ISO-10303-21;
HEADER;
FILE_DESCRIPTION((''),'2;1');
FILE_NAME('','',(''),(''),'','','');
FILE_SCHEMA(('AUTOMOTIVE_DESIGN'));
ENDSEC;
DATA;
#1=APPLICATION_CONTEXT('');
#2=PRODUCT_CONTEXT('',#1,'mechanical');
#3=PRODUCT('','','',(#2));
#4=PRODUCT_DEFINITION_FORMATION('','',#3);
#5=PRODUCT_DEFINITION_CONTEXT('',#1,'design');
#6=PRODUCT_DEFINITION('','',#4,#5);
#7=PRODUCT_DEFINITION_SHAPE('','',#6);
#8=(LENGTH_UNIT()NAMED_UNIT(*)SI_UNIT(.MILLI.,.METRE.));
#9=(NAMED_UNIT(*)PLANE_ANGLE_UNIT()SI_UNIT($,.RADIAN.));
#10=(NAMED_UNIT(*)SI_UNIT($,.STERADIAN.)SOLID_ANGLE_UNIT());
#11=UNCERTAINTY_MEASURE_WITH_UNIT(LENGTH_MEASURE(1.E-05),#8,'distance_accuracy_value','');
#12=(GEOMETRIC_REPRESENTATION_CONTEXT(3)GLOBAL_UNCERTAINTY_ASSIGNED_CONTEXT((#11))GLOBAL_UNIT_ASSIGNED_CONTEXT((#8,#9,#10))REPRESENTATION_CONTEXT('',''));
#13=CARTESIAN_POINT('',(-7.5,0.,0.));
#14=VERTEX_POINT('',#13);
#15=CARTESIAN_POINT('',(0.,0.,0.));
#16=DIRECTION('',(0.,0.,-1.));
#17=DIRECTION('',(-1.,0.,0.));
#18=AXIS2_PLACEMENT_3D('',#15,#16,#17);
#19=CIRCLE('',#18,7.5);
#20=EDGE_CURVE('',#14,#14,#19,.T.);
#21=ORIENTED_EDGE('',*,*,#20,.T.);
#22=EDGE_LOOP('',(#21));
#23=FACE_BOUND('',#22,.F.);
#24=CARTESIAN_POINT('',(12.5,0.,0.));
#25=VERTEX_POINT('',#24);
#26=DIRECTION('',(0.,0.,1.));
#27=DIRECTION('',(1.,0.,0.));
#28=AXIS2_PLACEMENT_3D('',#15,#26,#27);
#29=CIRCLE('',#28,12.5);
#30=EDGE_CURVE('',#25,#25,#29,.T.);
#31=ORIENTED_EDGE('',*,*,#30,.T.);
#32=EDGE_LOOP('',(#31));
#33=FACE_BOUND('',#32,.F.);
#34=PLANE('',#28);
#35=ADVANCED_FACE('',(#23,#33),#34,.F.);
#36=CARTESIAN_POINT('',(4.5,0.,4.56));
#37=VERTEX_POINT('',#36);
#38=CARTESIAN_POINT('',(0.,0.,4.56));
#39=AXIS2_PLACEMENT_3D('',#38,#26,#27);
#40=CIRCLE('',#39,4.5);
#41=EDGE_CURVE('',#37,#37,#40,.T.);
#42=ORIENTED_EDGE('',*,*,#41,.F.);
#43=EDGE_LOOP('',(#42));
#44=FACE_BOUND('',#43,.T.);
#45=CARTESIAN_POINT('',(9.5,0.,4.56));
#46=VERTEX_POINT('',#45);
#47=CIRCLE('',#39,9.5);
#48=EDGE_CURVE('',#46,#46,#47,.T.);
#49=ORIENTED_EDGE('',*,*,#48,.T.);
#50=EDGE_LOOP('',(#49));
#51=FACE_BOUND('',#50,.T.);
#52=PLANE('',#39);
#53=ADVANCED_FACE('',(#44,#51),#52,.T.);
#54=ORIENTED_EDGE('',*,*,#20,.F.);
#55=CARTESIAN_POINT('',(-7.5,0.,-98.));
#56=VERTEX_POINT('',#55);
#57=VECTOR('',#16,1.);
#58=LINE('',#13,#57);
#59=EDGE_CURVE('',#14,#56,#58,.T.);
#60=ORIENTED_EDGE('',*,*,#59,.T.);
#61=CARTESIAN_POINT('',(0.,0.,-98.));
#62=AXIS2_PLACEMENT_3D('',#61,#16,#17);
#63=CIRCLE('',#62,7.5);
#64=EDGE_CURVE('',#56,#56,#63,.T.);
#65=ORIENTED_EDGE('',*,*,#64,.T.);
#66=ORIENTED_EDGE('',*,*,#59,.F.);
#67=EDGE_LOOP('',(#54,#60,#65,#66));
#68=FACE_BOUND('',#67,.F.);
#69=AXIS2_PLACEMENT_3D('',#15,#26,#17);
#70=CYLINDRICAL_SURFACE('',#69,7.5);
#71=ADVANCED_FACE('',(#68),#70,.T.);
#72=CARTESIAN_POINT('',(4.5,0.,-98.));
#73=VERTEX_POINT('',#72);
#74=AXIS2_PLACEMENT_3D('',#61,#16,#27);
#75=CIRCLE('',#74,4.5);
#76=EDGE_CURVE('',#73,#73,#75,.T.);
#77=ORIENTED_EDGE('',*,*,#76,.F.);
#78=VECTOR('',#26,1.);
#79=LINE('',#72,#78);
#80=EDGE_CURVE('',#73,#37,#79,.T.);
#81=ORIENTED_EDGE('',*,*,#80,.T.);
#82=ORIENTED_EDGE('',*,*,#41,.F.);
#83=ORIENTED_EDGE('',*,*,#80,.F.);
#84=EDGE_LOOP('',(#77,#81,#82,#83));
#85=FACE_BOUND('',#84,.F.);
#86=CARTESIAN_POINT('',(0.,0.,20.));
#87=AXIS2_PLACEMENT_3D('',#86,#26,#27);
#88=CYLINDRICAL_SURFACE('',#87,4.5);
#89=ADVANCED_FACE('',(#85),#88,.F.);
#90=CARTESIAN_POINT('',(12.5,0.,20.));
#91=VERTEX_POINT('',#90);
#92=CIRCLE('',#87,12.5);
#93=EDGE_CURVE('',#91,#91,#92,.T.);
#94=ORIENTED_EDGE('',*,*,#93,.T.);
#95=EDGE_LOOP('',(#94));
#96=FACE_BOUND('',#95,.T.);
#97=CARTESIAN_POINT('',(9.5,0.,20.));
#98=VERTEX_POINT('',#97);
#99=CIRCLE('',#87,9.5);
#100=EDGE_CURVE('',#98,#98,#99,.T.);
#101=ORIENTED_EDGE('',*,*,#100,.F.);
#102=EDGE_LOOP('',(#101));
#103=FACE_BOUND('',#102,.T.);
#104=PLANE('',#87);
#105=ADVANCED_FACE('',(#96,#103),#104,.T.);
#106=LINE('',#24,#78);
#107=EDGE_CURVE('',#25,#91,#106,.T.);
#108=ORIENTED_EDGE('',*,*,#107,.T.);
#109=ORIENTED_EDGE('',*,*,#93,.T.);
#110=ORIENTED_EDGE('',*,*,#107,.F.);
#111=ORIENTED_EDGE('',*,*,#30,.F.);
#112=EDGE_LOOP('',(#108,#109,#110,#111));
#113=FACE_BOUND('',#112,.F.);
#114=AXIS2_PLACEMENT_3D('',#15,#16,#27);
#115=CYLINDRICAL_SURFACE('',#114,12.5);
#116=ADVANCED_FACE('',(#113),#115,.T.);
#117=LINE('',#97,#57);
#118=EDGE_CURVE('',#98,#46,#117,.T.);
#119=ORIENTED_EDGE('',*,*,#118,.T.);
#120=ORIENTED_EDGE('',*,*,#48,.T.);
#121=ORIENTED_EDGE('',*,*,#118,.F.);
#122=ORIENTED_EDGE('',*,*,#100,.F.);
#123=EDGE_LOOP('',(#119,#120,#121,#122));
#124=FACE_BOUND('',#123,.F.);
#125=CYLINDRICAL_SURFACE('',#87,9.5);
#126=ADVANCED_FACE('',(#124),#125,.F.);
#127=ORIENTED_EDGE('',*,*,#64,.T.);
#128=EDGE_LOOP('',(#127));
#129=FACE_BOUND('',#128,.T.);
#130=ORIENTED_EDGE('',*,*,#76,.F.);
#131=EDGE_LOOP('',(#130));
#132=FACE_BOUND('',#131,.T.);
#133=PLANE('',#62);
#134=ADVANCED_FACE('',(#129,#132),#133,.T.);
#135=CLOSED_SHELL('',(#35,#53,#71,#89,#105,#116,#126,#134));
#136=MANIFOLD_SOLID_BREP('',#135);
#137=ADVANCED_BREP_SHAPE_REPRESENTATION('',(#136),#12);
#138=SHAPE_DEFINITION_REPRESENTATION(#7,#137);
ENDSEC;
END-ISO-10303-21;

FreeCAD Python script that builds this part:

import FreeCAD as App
import Part
import Sketcher

V = App.Vector

doc = App.newDocument("Part")
body = doc.addObject("PartDesign::Body", "Body")

# Sketch on XY plane
sketch1 = body.newObject("Sketcher::SketchObject", "Sketch")
sketch1.AttachmentSupport = (doc.getObject("XY_Plane"), [""])
sketch1.MapMode = "FlatFace"
sketch1.addGeometry(Part.Circle(V(0, 0, 0), V(0, 0, 1), 12.5), False)
sketch1.addConstraint(Sketcher.Constraint("Coincident", 0, 3, -1, 1))
sketch1.addConstraint(Sketcher.Constraint("Diameter", 0, 25.0))
pad1 = body.newObject("PartDesign::Pad", "Pad")
pad1.Profile = sketch1
pad1.Length = 20

# Sketch on XY plane
sketch2 = body.newObject("Sketcher::SketchObject", "Sketch001")
sketch2.AttachmentSupport = (doc.getObject("XY_Plane"), [""])
sketch2.MapMode = "FlatFace"
sketch2.addGeometry(Part.Circle(V(0, 0, 0), V(0, 0, 1), 7.5), False)
sketch2.addGeometry(Part.Circle(V(0, 0, 0), V(0, 0, 1), 4.5), False)
sketch2.addConstraint(Sketcher.Constraint("Coincident", 0, 3, -1, 1))
sketch2.addConstraint(Sketcher.Constraint("Coincident", 1, 3, -1, 1))
sketch2.addConstraint(Sketcher.Constraint("Diameter", 1, 9.0))
sketch2.addConstraint(Sketcher.Constraint("Diameter", 0, 15.0))
pad2 = body.newObject("PartDesign::Pad", "Pad001")
pad2.Profile = sketch2
pad2.Length = 98
pad2.Reversed = True

# Sketch on XY plane
sketch3 = body.newObject("Sketcher::SketchObject", "Sketch002")
sketch3.AttachmentSupport = (doc.getObject("XY_Plane"), [""])
sketch3.MapMode = "FlatFace"
sketch3.AttachmentOffset = App.Placement(V(0, 0, 20), App.Rotation())
sketch3.addGeometry(Part.Circle(V(0, 0, 0), V(0, 0, 1), 4.5), False)
sketch3.addConstraint(Sketcher.Constraint("Coincident", 0, 3, -1, 1))
sketch3.addConstraint(Sketcher.Constraint("Diameter", 0, 9.0))
pocket1 = body.newObject("PartDesign::Pocket", "Pocket")
pocket1.Profile = sketch3
pocket1.Type = "ThroughAll"

# Sketch on XY plane
sketch4 = body.newObject("Sketcher::SketchObject", "Sketch003")
sketch4.AttachmentSupport = (doc.getObject("XY_Plane"), [""])
sketch4.MapMode = "FlatFace"
sketch4.AttachmentOffset = App.Placement(V(0, 0, 20), App.Rotation())
sketch4.addGeometry(Part.Circle(V(0, 0, 0), V(0, 0, 1), 9.5), False)
sketch4.addConstraint(Sketcher.Constraint("Coincident", 0, 3, -1, 1))
sketch4.addConstraint(Sketcher.Constraint("Diameter", 0, 19.0))
pocket2 = body.newObject("PartDesign::Pocket", "Pocket001")
pocket2.Profile = sketch4
pocket2.Length = 15.44

doc.recompute()
